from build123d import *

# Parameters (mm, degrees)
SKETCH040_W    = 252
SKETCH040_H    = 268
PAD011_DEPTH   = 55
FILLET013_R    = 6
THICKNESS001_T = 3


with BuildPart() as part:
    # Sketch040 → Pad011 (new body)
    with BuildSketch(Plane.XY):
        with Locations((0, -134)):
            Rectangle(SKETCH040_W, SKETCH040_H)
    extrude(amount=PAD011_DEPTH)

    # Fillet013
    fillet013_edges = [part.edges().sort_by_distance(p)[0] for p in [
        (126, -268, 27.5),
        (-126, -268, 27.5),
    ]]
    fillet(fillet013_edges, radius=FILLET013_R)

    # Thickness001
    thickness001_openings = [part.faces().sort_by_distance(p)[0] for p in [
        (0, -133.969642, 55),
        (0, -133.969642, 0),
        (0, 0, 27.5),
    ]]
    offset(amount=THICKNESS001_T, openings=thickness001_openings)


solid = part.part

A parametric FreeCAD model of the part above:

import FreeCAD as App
import Part
import Sketcher


def edges_at(feature, points):
    """Names of the edges that pass closest to the given points."""
    edges = feature.Shape.Edges
    near = lambda p: min(range(len(edges)), key=lambda i: edges[i].distToShape(Part.Vertex(*p))[0])
    return sorted({f"Edge{near(p) + 1}" for p in points})


def faces_at(feature, points):
    """Names of the faces that lie closest to the given points."""
    faces = feature.Shape.Faces
    near = lambda p: min(range(len(faces)), key=lambda i: faces[i].distToShape(Part.Vertex(*p))[0])
    return sorted({f"Face{near(p) + 1}" for p in points})


def add_polygon(sketch, points):
    """Adds a closed chain of lines whose ends are joined by coincident constraints."""
    first, n = sketch.GeometryCount, len(points)
    for a, b in zip(points, points[1:] + points[:1]):
        sketch.addGeometry(Part.LineSegment(App.Vector(*a, 0), App.Vector(*b, 0)), False)
    for i in range(n):
        sketch.addConstraint(Sketcher.Constraint("Coincident", first + i, 2, first + (i + 1) % n, 1))

doc = App.newDocument("Part")
body = doc.addObject("PartDesign::Body", "Body")

# Sketch on XY plane
sketch1 = body.newObject("Sketcher::SketchObject", "Sketch")
sketch1.AttachmentSupport = (doc.getObject("XY_Plane"), [""])
sketch1.MapMode = "FlatFace"
add_polygon(sketch1, [(-126, 0), (-126, -268), (126, -268), (126, 0)])  # lines 0-3
sketch1.addConstraint(Sketcher.Constraint("Vertical", 0))
sketch1.addConstraint(Sketcher.Constraint("Horizontal", 1))
sketch1.addConstraint(Sketcher.Constraint("Vertical", 2))
sketch1.addConstraint(Sketcher.Constraint("Horizontal", 3))
sketch1.addConstraint(Sketcher.Constraint("Symmetric", 2, 2, 3, 2, -1, 1))
sketch1.addConstraint(Sketcher.Constraint("DistanceX", 1, 1, 1, 2, 252.0))
sketch1.addConstraint(Sketcher.Constraint("DistanceY", 0, 2, 0, 1, 268.0))
pad1 = body.newObject("PartDesign::Pad", "Pad")
pad1.Profile = sketch1
pad1.Length = 55
doc.recompute()

fillet = body.newObject("PartDesign::Fillet", "Fillet")
fillet.Base = (pad1, edges_at(pad1, [(126, -268, 27.5), (-126, -268, 27.5)]))
fillet.Radius = 6
doc.recompute()

thickness = body.newObject("PartDesign::Thickness", "Thickness")
thickness.Base = (fillet, faces_at(fillet, [(0, -134, 55), (0, -134, 0), (0, 0, 27.5)]))
thickness.Value = 3
thickness.Reversed = False
thickness.Join = "Arc"

doc.recompute()
